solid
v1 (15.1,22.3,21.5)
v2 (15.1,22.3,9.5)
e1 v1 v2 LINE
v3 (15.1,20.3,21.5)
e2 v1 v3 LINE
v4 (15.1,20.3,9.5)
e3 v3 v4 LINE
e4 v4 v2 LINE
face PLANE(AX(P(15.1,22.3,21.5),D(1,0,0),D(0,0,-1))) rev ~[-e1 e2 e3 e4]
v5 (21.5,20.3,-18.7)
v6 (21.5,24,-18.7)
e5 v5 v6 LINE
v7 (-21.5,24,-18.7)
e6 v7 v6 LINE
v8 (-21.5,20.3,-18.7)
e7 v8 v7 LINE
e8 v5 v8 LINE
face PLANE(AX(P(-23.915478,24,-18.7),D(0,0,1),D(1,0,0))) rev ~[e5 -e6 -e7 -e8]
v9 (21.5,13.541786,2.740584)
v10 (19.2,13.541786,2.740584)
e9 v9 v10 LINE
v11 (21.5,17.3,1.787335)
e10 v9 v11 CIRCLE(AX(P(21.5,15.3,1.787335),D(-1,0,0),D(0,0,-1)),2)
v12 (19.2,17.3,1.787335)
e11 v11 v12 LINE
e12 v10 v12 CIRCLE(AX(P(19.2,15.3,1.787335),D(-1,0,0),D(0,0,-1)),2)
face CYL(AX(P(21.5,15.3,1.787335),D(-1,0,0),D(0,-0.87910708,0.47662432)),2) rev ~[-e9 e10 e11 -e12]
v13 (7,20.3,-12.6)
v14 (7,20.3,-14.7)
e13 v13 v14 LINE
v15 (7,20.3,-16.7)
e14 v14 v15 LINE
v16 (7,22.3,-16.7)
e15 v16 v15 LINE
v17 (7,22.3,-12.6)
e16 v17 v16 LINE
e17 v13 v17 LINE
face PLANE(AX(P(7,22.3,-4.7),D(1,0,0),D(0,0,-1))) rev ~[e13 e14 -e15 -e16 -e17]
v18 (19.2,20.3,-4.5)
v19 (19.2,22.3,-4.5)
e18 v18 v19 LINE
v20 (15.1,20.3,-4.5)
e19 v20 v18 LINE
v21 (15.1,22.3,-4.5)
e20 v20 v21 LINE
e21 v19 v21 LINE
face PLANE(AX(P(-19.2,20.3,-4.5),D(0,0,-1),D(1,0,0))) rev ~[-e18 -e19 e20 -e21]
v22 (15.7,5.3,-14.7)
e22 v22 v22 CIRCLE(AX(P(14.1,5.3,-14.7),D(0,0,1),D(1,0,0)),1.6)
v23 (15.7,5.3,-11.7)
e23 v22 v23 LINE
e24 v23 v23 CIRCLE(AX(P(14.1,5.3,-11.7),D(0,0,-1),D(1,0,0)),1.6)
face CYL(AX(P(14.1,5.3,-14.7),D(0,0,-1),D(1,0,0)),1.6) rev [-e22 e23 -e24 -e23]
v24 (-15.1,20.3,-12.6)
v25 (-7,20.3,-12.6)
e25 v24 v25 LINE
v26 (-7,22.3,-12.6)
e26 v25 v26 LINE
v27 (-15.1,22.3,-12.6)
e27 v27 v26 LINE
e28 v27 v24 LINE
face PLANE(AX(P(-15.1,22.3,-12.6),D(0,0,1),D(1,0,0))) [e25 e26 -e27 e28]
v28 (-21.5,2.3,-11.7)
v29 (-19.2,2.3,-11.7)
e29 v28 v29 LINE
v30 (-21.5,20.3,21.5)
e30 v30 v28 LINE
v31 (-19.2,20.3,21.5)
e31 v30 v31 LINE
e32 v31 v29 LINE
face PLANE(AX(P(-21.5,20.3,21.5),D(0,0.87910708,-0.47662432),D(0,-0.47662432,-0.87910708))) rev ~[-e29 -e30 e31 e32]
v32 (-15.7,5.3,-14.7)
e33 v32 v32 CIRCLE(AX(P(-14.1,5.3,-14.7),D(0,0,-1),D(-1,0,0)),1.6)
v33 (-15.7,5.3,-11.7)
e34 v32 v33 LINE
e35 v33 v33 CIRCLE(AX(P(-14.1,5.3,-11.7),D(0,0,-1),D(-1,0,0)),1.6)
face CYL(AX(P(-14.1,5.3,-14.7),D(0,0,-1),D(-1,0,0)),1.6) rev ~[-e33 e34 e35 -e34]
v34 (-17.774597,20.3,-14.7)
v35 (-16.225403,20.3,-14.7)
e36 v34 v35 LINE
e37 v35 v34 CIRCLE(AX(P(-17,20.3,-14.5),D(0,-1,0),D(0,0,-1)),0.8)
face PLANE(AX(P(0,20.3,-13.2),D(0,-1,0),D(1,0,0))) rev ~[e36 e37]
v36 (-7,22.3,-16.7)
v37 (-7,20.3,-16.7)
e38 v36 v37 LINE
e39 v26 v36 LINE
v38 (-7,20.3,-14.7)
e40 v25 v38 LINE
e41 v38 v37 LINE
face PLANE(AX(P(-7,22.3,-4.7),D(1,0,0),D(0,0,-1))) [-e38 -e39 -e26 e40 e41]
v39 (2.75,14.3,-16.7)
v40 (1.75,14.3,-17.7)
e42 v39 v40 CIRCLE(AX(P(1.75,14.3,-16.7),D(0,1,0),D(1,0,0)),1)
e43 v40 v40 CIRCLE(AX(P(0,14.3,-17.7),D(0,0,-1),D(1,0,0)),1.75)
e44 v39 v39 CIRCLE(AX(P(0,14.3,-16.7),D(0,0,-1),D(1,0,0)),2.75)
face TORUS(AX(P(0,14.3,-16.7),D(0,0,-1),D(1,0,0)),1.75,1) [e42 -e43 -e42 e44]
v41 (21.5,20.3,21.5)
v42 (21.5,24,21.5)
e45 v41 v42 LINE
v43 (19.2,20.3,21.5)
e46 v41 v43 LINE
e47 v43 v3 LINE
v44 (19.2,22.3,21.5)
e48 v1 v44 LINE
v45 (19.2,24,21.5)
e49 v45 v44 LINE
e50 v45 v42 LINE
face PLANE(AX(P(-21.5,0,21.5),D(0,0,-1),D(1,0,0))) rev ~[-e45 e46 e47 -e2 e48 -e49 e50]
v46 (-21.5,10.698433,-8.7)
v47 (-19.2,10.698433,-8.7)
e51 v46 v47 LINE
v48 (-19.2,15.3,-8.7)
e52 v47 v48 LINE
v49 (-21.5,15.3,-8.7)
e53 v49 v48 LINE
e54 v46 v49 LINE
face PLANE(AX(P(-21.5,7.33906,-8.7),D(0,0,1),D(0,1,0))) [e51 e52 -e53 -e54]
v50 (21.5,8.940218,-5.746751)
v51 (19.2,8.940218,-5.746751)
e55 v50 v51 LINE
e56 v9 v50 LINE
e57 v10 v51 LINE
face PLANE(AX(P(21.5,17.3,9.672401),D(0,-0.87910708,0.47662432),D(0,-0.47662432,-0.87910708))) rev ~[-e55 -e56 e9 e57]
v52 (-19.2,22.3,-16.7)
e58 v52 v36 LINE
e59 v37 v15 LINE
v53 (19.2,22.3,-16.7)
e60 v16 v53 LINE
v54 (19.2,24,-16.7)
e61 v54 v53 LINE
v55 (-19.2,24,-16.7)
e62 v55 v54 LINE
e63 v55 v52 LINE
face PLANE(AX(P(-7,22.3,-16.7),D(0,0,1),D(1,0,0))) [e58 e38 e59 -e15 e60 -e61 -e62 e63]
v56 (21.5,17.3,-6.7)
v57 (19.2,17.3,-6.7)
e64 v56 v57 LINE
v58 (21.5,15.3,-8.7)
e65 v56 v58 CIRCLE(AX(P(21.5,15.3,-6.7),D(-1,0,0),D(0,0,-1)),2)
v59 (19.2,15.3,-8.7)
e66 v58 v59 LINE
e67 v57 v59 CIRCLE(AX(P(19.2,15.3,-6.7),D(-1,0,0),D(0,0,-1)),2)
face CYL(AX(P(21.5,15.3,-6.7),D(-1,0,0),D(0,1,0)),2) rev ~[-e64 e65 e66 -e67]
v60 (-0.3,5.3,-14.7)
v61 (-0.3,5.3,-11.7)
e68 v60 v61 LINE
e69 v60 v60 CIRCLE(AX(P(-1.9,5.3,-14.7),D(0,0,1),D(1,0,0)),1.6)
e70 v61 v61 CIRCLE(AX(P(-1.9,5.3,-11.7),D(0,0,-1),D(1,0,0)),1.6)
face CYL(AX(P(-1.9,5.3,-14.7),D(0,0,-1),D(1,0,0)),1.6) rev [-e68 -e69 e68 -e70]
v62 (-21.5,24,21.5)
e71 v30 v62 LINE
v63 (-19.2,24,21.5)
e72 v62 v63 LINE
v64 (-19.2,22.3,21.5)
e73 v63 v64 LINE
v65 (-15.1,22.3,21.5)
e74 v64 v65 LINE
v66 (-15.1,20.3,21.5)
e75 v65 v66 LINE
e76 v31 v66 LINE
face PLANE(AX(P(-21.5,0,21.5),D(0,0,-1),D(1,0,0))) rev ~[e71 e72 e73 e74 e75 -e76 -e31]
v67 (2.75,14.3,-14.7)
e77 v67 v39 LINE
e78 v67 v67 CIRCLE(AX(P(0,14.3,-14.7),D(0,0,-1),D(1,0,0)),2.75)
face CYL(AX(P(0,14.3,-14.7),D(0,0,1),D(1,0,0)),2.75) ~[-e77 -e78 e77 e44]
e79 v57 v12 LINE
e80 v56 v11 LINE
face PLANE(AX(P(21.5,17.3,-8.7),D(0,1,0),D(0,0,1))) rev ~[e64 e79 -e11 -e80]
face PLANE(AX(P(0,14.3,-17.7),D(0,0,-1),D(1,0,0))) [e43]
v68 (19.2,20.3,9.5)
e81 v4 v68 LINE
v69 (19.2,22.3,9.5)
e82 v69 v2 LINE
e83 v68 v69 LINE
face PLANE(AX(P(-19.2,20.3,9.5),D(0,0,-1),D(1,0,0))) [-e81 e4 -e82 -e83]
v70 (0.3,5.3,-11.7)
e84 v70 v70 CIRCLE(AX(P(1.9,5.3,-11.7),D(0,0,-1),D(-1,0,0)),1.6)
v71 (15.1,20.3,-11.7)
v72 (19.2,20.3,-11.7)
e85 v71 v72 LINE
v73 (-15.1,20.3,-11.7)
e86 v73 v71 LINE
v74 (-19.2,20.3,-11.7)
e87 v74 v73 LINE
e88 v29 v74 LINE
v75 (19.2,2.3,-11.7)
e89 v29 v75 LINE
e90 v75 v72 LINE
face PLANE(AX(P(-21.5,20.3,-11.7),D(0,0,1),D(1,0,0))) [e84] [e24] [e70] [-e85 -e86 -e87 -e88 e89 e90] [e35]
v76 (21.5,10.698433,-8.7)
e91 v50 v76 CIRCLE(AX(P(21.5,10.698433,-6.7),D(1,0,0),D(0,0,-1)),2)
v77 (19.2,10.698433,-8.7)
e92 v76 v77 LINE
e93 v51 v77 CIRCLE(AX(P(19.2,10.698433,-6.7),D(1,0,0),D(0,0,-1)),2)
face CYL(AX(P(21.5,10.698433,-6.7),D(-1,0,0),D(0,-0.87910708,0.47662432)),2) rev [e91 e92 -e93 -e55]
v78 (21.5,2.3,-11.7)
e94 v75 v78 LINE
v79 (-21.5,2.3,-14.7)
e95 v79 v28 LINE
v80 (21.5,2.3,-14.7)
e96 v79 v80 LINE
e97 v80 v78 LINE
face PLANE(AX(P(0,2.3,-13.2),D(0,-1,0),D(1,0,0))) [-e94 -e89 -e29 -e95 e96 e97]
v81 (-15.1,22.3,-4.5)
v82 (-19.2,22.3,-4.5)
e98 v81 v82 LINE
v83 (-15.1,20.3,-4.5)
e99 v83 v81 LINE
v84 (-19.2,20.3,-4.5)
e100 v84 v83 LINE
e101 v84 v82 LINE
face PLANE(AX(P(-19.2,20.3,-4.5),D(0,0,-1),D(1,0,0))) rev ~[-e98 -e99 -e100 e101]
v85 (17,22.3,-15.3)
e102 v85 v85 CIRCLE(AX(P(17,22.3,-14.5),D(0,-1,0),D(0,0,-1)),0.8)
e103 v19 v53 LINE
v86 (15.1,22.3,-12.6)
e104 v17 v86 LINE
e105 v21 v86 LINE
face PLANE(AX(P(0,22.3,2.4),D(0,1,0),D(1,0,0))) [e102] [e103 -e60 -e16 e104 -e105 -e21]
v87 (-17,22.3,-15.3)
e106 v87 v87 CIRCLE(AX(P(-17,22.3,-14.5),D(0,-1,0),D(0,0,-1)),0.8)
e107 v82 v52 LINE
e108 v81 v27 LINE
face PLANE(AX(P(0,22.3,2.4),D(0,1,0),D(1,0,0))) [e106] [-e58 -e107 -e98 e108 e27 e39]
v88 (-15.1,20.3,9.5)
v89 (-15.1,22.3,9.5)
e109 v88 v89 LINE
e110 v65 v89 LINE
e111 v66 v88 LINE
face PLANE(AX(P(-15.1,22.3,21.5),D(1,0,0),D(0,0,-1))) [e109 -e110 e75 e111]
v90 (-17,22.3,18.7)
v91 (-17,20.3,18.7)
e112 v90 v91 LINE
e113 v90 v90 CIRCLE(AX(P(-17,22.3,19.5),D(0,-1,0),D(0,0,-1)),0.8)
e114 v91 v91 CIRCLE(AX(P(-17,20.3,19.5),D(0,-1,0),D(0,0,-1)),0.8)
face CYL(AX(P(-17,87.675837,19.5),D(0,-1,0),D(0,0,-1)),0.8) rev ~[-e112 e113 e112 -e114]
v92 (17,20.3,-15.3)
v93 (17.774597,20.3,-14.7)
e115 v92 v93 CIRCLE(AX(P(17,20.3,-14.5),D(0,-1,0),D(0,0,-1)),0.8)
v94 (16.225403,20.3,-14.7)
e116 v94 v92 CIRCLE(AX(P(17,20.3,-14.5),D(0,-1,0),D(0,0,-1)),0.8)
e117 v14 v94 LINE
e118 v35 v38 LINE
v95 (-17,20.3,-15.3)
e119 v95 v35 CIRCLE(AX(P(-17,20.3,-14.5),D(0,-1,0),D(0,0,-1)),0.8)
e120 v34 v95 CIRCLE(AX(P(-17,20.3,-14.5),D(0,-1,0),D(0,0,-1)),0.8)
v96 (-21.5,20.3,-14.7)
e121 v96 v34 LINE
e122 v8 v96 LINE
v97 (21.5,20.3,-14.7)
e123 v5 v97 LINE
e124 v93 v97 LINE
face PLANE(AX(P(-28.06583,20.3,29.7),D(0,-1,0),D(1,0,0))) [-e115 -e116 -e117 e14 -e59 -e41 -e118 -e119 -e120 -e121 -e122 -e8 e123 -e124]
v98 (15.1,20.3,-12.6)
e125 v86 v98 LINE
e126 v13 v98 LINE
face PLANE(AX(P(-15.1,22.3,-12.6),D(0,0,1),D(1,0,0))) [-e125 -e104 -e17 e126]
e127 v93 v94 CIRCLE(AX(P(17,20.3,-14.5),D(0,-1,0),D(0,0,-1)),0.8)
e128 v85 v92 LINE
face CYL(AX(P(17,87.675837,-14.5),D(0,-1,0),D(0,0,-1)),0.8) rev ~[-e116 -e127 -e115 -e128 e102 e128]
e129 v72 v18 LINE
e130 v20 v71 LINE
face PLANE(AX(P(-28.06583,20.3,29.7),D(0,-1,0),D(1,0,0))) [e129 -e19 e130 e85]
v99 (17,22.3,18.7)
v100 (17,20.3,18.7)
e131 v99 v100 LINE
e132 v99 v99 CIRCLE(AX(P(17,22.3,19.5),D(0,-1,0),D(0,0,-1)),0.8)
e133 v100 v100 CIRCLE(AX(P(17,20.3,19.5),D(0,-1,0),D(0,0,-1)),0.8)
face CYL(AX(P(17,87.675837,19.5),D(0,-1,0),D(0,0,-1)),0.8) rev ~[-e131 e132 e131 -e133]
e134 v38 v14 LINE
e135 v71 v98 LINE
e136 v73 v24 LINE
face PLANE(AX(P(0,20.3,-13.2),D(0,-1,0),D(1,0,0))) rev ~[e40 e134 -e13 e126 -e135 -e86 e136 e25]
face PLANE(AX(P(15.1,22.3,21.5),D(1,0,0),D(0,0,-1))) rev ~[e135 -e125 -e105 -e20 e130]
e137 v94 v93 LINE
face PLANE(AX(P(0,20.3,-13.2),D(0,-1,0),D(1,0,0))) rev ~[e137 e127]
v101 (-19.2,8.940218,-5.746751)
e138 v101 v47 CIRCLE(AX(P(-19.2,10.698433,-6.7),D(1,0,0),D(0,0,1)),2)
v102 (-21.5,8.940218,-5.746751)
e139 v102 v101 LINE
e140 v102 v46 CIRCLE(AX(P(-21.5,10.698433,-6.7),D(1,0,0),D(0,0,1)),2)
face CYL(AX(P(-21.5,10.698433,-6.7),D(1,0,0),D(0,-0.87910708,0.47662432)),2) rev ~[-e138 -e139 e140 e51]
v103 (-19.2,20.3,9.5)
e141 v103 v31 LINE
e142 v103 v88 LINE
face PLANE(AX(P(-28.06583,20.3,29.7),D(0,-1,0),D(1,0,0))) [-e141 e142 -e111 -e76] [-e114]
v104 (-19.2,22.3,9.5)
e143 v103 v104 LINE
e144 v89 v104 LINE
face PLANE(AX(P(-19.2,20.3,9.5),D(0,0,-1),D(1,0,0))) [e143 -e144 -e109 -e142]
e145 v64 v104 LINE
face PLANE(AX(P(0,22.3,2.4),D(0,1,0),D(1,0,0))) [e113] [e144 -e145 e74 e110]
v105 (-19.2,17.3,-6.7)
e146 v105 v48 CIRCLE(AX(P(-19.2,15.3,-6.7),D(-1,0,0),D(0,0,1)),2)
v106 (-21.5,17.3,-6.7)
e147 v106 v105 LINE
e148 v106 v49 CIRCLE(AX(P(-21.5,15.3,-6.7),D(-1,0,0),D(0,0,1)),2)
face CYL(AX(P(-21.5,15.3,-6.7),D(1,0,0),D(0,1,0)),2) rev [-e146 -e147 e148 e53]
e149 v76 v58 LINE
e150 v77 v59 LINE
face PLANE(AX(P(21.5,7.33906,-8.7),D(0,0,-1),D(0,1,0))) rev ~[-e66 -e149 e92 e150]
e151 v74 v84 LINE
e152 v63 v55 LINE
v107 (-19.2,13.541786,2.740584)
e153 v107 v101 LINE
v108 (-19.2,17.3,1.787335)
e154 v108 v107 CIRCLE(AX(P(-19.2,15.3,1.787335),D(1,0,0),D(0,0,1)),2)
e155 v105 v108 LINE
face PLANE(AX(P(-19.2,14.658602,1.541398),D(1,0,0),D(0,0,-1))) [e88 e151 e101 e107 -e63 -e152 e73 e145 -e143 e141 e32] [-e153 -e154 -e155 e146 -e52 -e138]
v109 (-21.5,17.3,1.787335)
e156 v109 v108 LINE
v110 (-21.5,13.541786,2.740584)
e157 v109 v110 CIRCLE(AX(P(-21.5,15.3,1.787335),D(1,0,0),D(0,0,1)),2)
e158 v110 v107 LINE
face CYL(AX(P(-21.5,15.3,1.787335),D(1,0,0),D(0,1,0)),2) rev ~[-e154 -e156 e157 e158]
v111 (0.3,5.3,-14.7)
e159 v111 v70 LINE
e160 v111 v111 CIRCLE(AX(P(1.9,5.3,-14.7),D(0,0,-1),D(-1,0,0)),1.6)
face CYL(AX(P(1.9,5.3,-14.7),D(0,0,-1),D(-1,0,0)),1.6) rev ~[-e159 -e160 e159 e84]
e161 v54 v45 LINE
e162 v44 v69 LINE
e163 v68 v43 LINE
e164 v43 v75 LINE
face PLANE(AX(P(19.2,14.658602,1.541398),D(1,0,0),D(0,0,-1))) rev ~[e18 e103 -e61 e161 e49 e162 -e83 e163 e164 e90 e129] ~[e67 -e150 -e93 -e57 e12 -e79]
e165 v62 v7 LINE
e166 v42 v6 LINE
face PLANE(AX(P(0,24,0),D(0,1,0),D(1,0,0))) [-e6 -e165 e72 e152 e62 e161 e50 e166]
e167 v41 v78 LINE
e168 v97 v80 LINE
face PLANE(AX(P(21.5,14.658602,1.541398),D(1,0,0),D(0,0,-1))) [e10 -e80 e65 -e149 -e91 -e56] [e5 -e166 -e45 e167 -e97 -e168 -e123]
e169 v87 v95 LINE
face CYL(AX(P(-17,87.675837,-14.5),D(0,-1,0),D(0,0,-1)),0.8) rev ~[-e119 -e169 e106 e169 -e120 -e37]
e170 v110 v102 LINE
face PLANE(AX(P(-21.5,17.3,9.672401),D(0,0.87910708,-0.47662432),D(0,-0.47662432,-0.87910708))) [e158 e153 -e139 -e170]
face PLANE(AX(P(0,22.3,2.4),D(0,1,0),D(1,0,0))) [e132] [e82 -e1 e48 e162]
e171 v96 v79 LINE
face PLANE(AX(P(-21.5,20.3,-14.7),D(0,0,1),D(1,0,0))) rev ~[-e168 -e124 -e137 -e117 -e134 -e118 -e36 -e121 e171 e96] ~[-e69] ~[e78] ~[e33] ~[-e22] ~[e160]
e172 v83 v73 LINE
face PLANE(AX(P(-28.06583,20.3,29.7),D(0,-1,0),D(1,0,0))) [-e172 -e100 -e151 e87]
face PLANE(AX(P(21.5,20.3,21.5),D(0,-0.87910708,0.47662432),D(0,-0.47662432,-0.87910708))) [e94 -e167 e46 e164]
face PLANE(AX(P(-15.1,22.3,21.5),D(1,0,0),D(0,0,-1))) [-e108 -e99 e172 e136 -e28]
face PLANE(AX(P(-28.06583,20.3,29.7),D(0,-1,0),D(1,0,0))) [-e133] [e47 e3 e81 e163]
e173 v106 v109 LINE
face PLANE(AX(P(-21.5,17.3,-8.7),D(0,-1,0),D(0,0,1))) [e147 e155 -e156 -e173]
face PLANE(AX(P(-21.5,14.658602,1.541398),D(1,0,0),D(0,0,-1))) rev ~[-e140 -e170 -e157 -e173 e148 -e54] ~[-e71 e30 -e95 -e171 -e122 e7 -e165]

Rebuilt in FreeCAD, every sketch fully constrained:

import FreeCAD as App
import Part
import Sketcher
Q = App.Units.Quantity


def edges_at(feature, points):
    """Names of the edges that pass closest to the given points."""
    edges = feature.Shape.Edges
    near = lambda p: min(range(len(edges)), key=lambda i: edges[i].distToShape(Part.Vertex(*p))[0])
    return sorted({f"Edge{near(p) + 1}" for p in points})

doc = App.newDocument("Part")
params = doc.addObject("Spreadsheet::Sheet", "Params")
for row, (alias, value) in enumerate([
    ("sketch1_width", "43 mm"),
    ("pad1_length", "24 mm"),
    ("sketch2_width", "38.4 mm"),
    ("sketch2_height", "38.2 mm"),
    ("pocket1_length", "1.7 mm"),
    ("sketch3_diameter", "1.6 mm"),
    ("hole_diameter", "1.6 mm"),
    ("sketch4_width", "30.2 mm"),
    ("sketch4_height", "34.1 mm"),
    ("pocket2_length", "2 mm"),
    ("sketch5_width", "14 mm"),
    ("sketch5_height", "12 mm"),
    ("sketch6_width", "28.9 mm"),
    ("sketch7_height", "20.3 mm"),
    ("sketch7_width", "7.05 mm"),
    ("pad2_length", "8.2 mm"),
    ("sketch8_width", "11.8 mm"),
    ("pocket5_length", "4.1 mm"),
    ("sketch9_diameter", "2.9 mm"),
    ("hole2_diameter", "2.9 mm"),
    ("sketch10_width", "45 mm"),
    ("pocket6_length", "11.8 mm"),
    ("pocket8_length", "10 mm"),
    ("sketch13_height", "14 mm"),
    ("sketch13_width", "38.4 mm"),
    ("sketch14_width", "43 mm"),
    ("sketch14_height", "3 mm"),
    ("pad3_length", "18 mm"),
    ("sketch15_diameter", "3.2 mm"),
    ("sketch16_diameter", "5.5 mm"),
    ("pad4_length", "3 mm"),
    ("fillet_radius", "1 mm"),
    ("sketch17_width", "18 mm"),
    ("sketch17_height", "33.2 mm"),
    ("pad5_length", "2.3 mm"),
    ("sketch18_width", "18 mm"),
    ("sketch18_height", "33.2 mm"),
    ("pad6_length", "2.3 mm"),
    ("fillet2_radius", "2 mm"),
], start=1):
    params.set(f"A{row}", alias)
    params.set(f"B{row}", "=" + value)
    params.setAlias(f"B{row}", alias)

body = doc.addObject("PartDesign::Body", "Body")

# Sketch on XZ plane
sketch1 = body.newObject("Sketcher::SketchObject", "Sketch")
sketch1.AttachmentSupport = (doc.getObject("XZ_Plane"), [""])
sketch1.MapMode = "FlatFace"
sketch1.addGeometry(Part.LineSegment(App.Vector(-21.5, -21.5, 0), App.Vector(-21.5, 21.5, 0)), False)
sketch1.addGeometry(Part.LineSegment(App.Vector(-21.5, 21.5, 0), App.Vector(21.5, 21.5, 0)), False)
sketch1.addGeometry(Part.LineSegment(App.Vector(21.5, 21.5, 0), App.Vector(21.5, -21.5, 0)), False)
sketch1.addGeometry(Part.LineSegment(App.Vector(21.5, -21.5, 0), App.Vector(-21.5, -21.5, 0)), False)
sketch1.addConstraint(Sketcher.Constraint("Coincident", 0, 2, 1, 1))
sketch1.addConstraint(Sketcher.Constraint("Coincident", 1, 2, 2, 1))
sketch1.addConstraint(Sketcher.Constraint("Coincident", 2, 2, 3, 1))
sketch1.addConstraint(Sketcher.Constraint("Coincident", 3, 2, 0, 1))
sketch1.addConstraint(Sketcher.Constraint("Vertical", 0))
sketch1.addConstraint(Sketcher.Constraint("Horizontal", 1))
sketch1.addConstraint(Sketcher.Constraint("Vertical", 2))
sketch1.addConstraint(Sketcher.Constraint("Horizontal", 3))
sketch1.addConstraint(Sketcher.Constraint("Symmetric", 0, 2, 2, 2, -1, 1))
sketch1.addConstraint(Sketcher.Constraint("Equal", 3, 0))
sketch1.addConstraint(Sketcher.Constraint("DistanceX", 1, 1, 1, 2, Q("43 mm")))
sketch1.setExpression("Constraints[10]", "Params.sketch1_width")
pad1 = body.newObject("PartDesign::Pad", "Pad")
pad1.Profile = sketch1
pad1.setExpression("Length", "Params.pad1_length")
pad1.Reversed = True

# Sketch on XZ plane
sketch2 = body.newObject("Sketcher::SketchObject", "Sketch001")
sketch2.AttachmentSupport = (doc.getObject("XZ_Plane"), [""])
sketch2.MapMode = "FlatFace"
sketch2.AttachmentOffset = App.Placement(App.Vector(0, 0, -24), App.Rotation())
sketch2.addGeometry(Part.LineSegment(App.Vector(-19.2, -16.7, 0), App.Vector(-19.2, 21.5, 0)), False)
sketch2.addGeometry(Part.LineSegment(App.Vector(-19.2, 21.5, 0), App.Vector(19.2, 21.5, 0)), False)
sketch2.addGeometry(Part.LineSegment(App.Vector(19.2, 21.5, 0), App.Vector(19.2, -16.7, 0)), False)
sketch2.addGeometry(Part.LineSegment(App.Vector(19.2, -16.7, 0), App.Vector(-19.2, -16.7, 0)), False)
sketch2.addConstraint(Sketcher.Constraint("Coincident", 0, 2, 1, 1))
sketch2.addConstraint(Sketcher.Constraint("Coincident", 1, 2, 2, 1))
sketch2.addConstraint(Sketcher.Constraint("Coincident", 2, 2, 3, 1))
sketch2.addConstraint(Sketcher.Constraint("Coincident", 3, 2, 0, 1))
sketch2.addConstraint(Sketcher.Constraint("Vertical", 0))
sketch2.addConstraint(Sketcher.Constraint("Horizontal", 1))
sketch2.addConstraint(Sketcher.Constraint("Vertical", 2))
sketch2.addConstraint(Sketcher.Constraint("Horizontal", 3))
sketch2.addConstraint(Sketcher.Constraint("DistanceX", 1, 1, 1, 2, Q("38.4 mm")))
sketch2.addConstraint(Sketcher.Constraint("DistanceY", 0, 1, 0, 2, Q("38.2 mm")))
sketch2.addConstraint(Sketcher.Constraint("DistanceX", 0, 2, -1, 1, Q("19.2 mm")))
sketch2.addConstraint(Sketcher.Constraint("DistanceY", -1, 1, 0, 2, Q("21.5 mm")))
sketch2.setExpression("Constraints[8]", "Params.sketch2_width")
sketch2.setExpression("Constraints[9]", "Params.sketch2_height")
pocket1 = body.newObject("PartDesign::Pocket", "Pocket")
pocket1.Profile = sketch2
pocket1.setExpression("Length", "Params.pocket1_length")
pocket1.Reversed = True

# Sketch on XZ plane
sketch3 = body.newObject("Sketcher::SketchObject", "Sketch002")
sketch3.AttachmentSupport = (doc.getObject("XZ_Plane"), [""])
sketch3.MapMode = "FlatFace"
sketch3.AttachmentOffset = App.Placement(App.Vector(0, 0, -22.3), App.Rotation())
sketch3.addGeometry(Part.Circle(App.Vector(-17, -14.5, 0), App.Vector(0, 0, 1), 0.8), False)
sketch3.addGeometry(Part.Circle(App.Vector(17, -14.5, 0), App.Vector(0, 0, 1), 0.8), False)
sketch3.addGeometry(Part.Circle(App.Vector(17, 19.5, 0), App.Vector(0, 0, 1), 0.8), False)
sketch3.addGeometry(Part.Circle(App.Vector(-17, 19.5, 0), App.Vector(0, 0, 1), 0.8), False)
sketch3.addConstraint(Sketcher.Constraint("Equal", 0, 1))
sketch3.addConstraint(Sketcher.Constraint("Equal", 1, 2))
sketch3.addConstraint(Sketcher.Constraint("Equal", 2, 3))
sketch3.addConstraint(Sketcher.Constraint("Symmetric", 0, 3, 1, 3, -2))
sketch3.addConstraint(Sketcher.Constraint("Symmetric", 2, 3, 3, 3, -2))
sketch3.addConstraint(Sketcher.Constraint("Vertical", 1, 3, 2, 3))
sketch3.addConstraint(Sketcher.Constraint("Diameter", 0, Q("1.6 mm")))
sketch3.addConstraint(Sketcher.Constraint("DistanceX", 0, 3, -1, 1, Q("17 mm")))
sketch3.addConstraint(Sketcher.Constraint("DistanceY", 1, 3, 2, 3, Q("34 mm")))
sketch3.addConstraint(Sketcher.Constraint("DistanceY", 0, 3, -1, 1, Q("14.5 mm")))
sketch3.setExpression("Constraints[6]", "Params.sketch3_diameter")
doc.recompute()
hole = body.newObject("PartDesign::Hole", "Hole")
hole.Profile = sketch3
hole.ThreadType = "None"
hole.setExpression("Diameter", "Params.hole_diameter")
hole.DepthType = "ThroughAll"
hole.Reversed = True

# Sketch on XZ plane
sketch4 = body.newObject("Sketcher::SketchObject", "Sketch003")
sketch4.AttachmentSupport = (doc.getObject("XZ_Plane"), [""])
sketch4.MapMode = "FlatFace"
sketch4.AttachmentOffset = App.Placement(App.Vector(0, 0, -22.3), App.Rotation())
sketch4.addGeometry(Part.LineSegment(App.Vector(-15.1, -12.6, 0), App.Vector(-15.1, 21.5, 0)), False)
sketch4.addGeometry(Part.LineSegment(App.Vector(-15.1, 21.5, 0), App.Vector(15.1, 21.5, 0)), False)
sketch4.addGeometry(Part.LineSegment(App.Vector(15.1, 21.5, 0), App.Vector(15.1, -12.6, 0)), False)
sketch4.addGeometry(Part.LineSegment(App.Vector(15.1, -12.6, 0), App.Vector(-15.1, -12.6, 0)), False)
sketch4.addConstraint(Sketcher.Constraint("Coincident", 0, 2, 1, 1))
sketch4.addConstraint(Sketcher.Constraint("Coincident", 1, 2, 2, 1))
sketch4.addConstraint(Sketcher.Constraint("Coincident", 2, 2, 3, 1))
sketch4.addConstraint(Sketcher.Constraint("Coincident", 3, 2, 0, 1))
sketch4.addConstraint(Sketcher.Constraint("Vertical", 0))
sketch4.addConstraint(Sketcher.Constraint("Horizontal", 1))
sketch4.addConstraint(Sketcher.Constraint("Vertical", 2))
sketch4.addConstraint(Sketcher.Constraint("Horizontal", 3))
sketch4.addConstraint(Sketcher.Constraint("DistanceX", 1, 1, 1, 2, Q("30.2 mm")))
sketch4.addConstraint(Sketcher.Constraint("DistanceY", 0, 1, 0, 2, Q("34.1 mm")))
sketch4.addConstraint(Sketcher.Constraint("DistanceX", 0, 2, -1, 1, Q("15.1 mm")))
sketch4.addConstraint(Sketcher.Constraint("DistanceY", -1, 1, 0, 2, Q("21.5 mm")))
sketch4.setExpression("Constraints[8]", "Params.sketch4_width")
sketch4.setExpression("Constraints[9]", "Params.sketch4_height")
pocket2 = body.newObject("PartDesign::Pocket", "Pocket001")
pocket2.Profile = sketch4
pocket2.setExpression("Length", "Params.pocket2_length")
pocket2.Reversed = True

# Sketch on XZ plane
sketch5 = body.newObject("Sketcher::SketchObject", "Sketch004")
sketch5.AttachmentSupport = (doc.getObject("XZ_Plane"), [""])
sketch5.MapMode = "FlatFace"
sketch5.AttachmentOffset = App.Placement(App.Vector(0, 0, -22.3), App.Rotation())
sketch5.addGeometry(Part.LineSegment(App.Vector(-7, -16.7, 0), App.Vector(-7, -4.7, 0)), False)
sketch5.addGeometry(Part.LineSegment(App.Vector(-7, -4.7, 0), App.Vector(7, -4.7, 0)), False)
sketch5.addGeometry(Part.LineSegment(App.Vector(7, -4.7, 0), App.Vector(7, -16.7, 0)), False)
sketch5.addGeometry(Part.LineSegment(App.Vector(7, -16.7, 0), App.Vector(-7, -16.7, 0)), False)
sketch5.addConstraint(Sketcher.Constraint("Coincident", 0, 2, 1, 1))
sketch5.addConstraint(Sketcher.Constraint("Coincident", 1, 2, 2, 1))
sketch5.addConstraint(Sketcher.Constraint("Coincident", 2, 2, 3, 1))
sketch5.addConstraint(Sketcher.Constraint("Coincident", 3, 2, 0, 1))
sketch5.addConstraint(Sketcher.Constraint("Vertical", 0))
sketch5.addConstraint(Sketcher.Constraint("Horizontal", 1))
sketch5.addConstraint(Sketcher.Constraint("Vertical", 2))
sketch5.addConstraint(Sketcher.Constraint("Horizontal", 3))
sketch5.addConstraint(Sketcher.Constraint("DistanceX", 1, 1, 1, 2, Q("14 mm")))
sketch5.addConstraint(Sketcher.Constraint("DistanceY", 0, 1, 0, 2, Q("12 mm")))
sketch5.addConstraint(Sketcher.Constraint("DistanceX", 0, 2, -1, 1, Q("7 mm")))
sketch5.addConstraint(Sketcher.Constraint("DistanceY", 0, 2, -1, 1, Q("4.7 mm")))
sketch5.setExpression("Constraints[8]", "Params.sketch5_width")
sketch5.setExpression("Constraints[9]", "Params.sketch5_height")
pocket3 = body.newObject("PartDesign::Pocket", "Pocket002")
pocket3.Profile = sketch5
pocket3.Type = "ThroughAll"
pocket3.Reversed = True

# Sketch on XZ plane
sketch6 = body.newObject("Sketcher::SketchObject", "Sketch005")
sketch6.AttachmentSupport = (doc.getObject("XZ_Plane"), [""])
sketch6.MapMode = "FlatFace"
sketch6.AttachmentOffset = App.Placement(App.Vector(0, 0, -20.3), App.Rotation())
sketch6.addGeometry(Part.LineSegment(App.Vector(-14.45, -6.491319, 0), App.Vector(-14.45, 49.491319, 0)), False)
sketch6.addGeometry(Part.LineSegment(App.Vector(-14.45, 49.491319, 0), App.Vector(14.45, 49.491319, 0)), False)
sketch6.addGeometry(Part.LineSegment(App.Vector(14.45, 49.491319, 0), App.Vector(14.45, -6.491319, 0)), False)
sketch6.addGeometry(Part.LineSegment(App.Vector(14.45, -6.491319, 0), App.Vector(-14.45, -6.491319, 0)), False)
sketch6.addConstraint(Sketcher.Constraint("Coincident", 0, 2, 1, 1))
sketch6.addConstraint(Sketcher.Constraint("Coincident", 1, 2, 2, 1))
sketch6.addConstraint(Sketcher.Constraint("Coincident", 2, 2, 3, 1))
sketch6.addConstraint(Sketcher.Constraint("Coincident", 3, 2, 0, 1))
sketch6.addConstraint(Sketcher.Constraint("Vertical", 0))
sketch6.addConstraint(Sketcher.Constraint("Horizontal", 1))
sketch6.addConstraint(Sketcher.Constraint("Vertical", 2))
sketch6.addConstraint(Sketcher.Constraint("Horizontal", 3))
sketch6.addConstraint(Sketcher.Constraint("DistanceX", 1, 1, 1, 2, Q("28.9 mm")))
sketch6.addConstraint(Sketcher.Constraint("DistanceX", 0, 2, -1, 1, Q("14.45 mm")))
sketch6.addConstraint(Sketcher.Constraint("DistanceY", 0, 1, 0, 2, Q("55.982637 mm")))
sketch6.addConstraint(Sketcher.Constraint("DistanceY", -1, 1, 0, 2, Q("49.491319 mm")))
sketch6.setExpression("Constraints[8]", "Params.sketch6_width")
pocket4 = body.newObject("PartDesign::Pocket", "Pocket003")
pocket4.Profile = sketch6
pocket4.Type = "ThroughAll"
pocket4.Reversed = True

# Sketch on XY plane
sketch7 = body.newObject("Sketcher::SketchObject", "Sketch006")
sketch7.AttachmentSupport = (doc.getObject("XY_Plane"), [""])
sketch7.MapMode = "FlatFace"
sketch7.AttachmentOffset = App.Placement(App.Vector(0, 0, 21.5), App.Rotation())
sketch7.addGeometry(Part.LineSegment(App.Vector(-21.5, 20.3, 0), App.Vector(-21.5, 0, 0)), False)
sketch7.addGeometry(Part.LineSegment(App.Vector(-21.5, 0, 0), App.Vector(-14.45, 0, 0)), False)
sketch7.addGeometry(Part.LineSegment(App.Vector(-14.45, 0, 0), App.Vector(-14.45, 20.3, 0)), False)
sketch7.addGeometry(Part.LineSegment(App.Vector(-14.45, 20.3, 0), App.Vector(-21.5, 20.3, 0)), False)
sketch7.addConstraint(Sketcher.Constraint("Coincident", 0, 2, 1, 1))
sketch7.addConstraint(Sketcher.Constraint("Coincident", 1, 2, 2, 1))
sketch7.addConstraint(Sketcher.Constraint("Coincident", 2, 2, 3, 1))
sketch7.addConstraint(Sketcher.Constraint("Coincident", 3, 2, 0, 1))
sketch7.addConstraint(Sketcher.Constraint("Vertical", 0))
sketch7.addConstraint(Sketcher.Constraint("Horizontal", 1))
sketch7.addConstraint(Sketcher.Constraint("Vertical", 2))
sketch7.addConstraint(Sketcher.Constraint("Horizontal", 3))
sketch7.addConstraint(Sketcher.Constraint("PointOnObject", 0, 2, -1))
sketch7.addConstraint(Sketcher.Constraint("DistanceY", 0, 2, 0, 1, Q("20.3 mm")))
sketch7.addConstraint(Sketcher.Constraint("DistanceX", 1, 1, 1, 2, Q("7.05 mm")))
sketch7.addConstraint(Sketcher.Constraint("DistanceX", 0, 2, -1, 1, Q("21.5 mm")))
sketch7.setExpression("Constraints[9]", "Params.sketch7_height")
sketch7.setExpression("Constraints[10]", "Params.sketch7_width")
pad2 = body.newObject("PartDesign::Pad", "Pad001")
pad2.Profile = sketch7
pad2.setExpression("Length", "Params.pad2_length")
doc.recompute()

mirrored = body.newObject("PartDesign::Mirrored", "Mirrored")
mirrored.Originals = [pad2]
mirrored.MirrorPlane = (doc.getObject("YZ_Plane"), [""])
body.Tip = mirrored

# Sketch on YZ plane
sketch8 = body.newObject("Sketcher::SketchObject", "Sketch007")
sketch8.AttachmentSupport = (doc.getObject("YZ_Plane"), [""])
sketch8.MapMode = "FlatFace"
sketch8.AttachmentOffset = App.Placement(App.Vector(0, 0, -14.45), App.Rotation())
sketch8.addGeometry(Part.LineSegment(App.Vector(11.8, 29.7, 0), App.Vector(0, 29.7, 0)), False)
sketch8.addGeometry(Part.LineSegment(App.Vector(0, 29.7, 0), App.Vector(0, -6.491319, 0)), False)
sketch8.addGeometry(Part.LineSegment(App.Vector(0, -6.491319, 0), App.Vector(11.8, -6.491319, 0)), False)
sketch8.addGeometry(Part.LineSegment(App.Vector(11.8, -6.491319, 0), App.Vector(11.8, 29.7, 0)), False)
sketch8.addConstraint(Sketcher.Constraint("Coincident", 0, 2, 1, 1))
sketch8.addConstraint(Sketcher.Constraint("Coincident", 1, 2, 2, 1))
sketch8.addConstraint(Sketcher.Constraint("Coincident", 2, 2, 3, 1))
sketch8.addConstraint(Sketcher.Constraint("Coincident", 3, 2, 0, 1))
sketch8.addConstraint(Sketcher.Constraint("Horizontal", 0))
sketch8.addConstraint(Sketcher.Constraint("Vertical", 1))
sketch8.addConstraint(Sketcher.Constraint("Horizontal", 2))
sketch8.addConstraint(Sketcher.Constraint("Vertical", 3))
sketch8.addConstraint(Sketcher.Constraint("PointOnObject", 0, 2, -2))
sketch8.addConstraint(Sketcher.Constraint("DistanceX", 0, 2, 0, 1, Q("11.8 mm")))
sketch8.addConstraint(Sketcher.Constraint("DistanceY", -1, 1, 0, 2, Q("29.7 mm")))
sketch8.addConstraint(Sketcher.Constraint("DistanceY", 1, 2, 1, 1, Q("36.191319 mm")))
sketch8.setExpression("Constraints[9]", "Params.sketch8_width")
pocket5 = body.newObject("PartDesign::Pocket", "Pocket004")
pocket5.Profile = sketch8
pocket5.setExpression("Length", "Params.pocket5_length")
doc.recompute()

mirrored2 = body.newObject("PartDesign::Mirrored", "Mirrored001")
mirrored2.Originals = [pocket5]
mirrored2.MirrorPlane = (doc.getObject("YZ_Plane"), [""])
body.Tip = mirrored2

# Sketch on YZ plane
sketch9 = body.newObject("Sketcher::SketchObject", "Sketch008")
sketch9.AttachmentSupport = (doc.getObject("YZ_Plane"), [""])
sketch9.MapMode = "FlatFace"
sketch9.AttachmentOffset = App.Placement(App.Vector(0, 0, -21.5), App.Rotation())
sketch9.addGeometry(Part.Circle(App.Vector(5.05, 6.7, 0), App.Vector(0, 0, 1), 1.45), False)
sketch9.addGeometry(Part.Circle(App.Vector(5.05, 18.7, 0), App.Vector(0, 0, 1), 1.45), False)
sketch9.addConstraint(Sketcher.Constraint("Equal", 0, 1))
sketch9.addConstraint(Sketcher.Constraint("Vertical", 0, 3, 1, 3))
sketch9.addConstraint(Sketcher.Constraint("Diameter", 0, Q("2.9 mm")))
sketch9.addConstraint(Sketcher.Constraint("DistanceY", 0, 3, 1, 3, Q("12 mm")))
sketch9.addConstraint(Sketcher.Constraint("DistanceY", -1, 1, 0, 3, Q("6.7 mm")))
sketch9.addConstraint(Sketcher.Constraint("DistanceX", -1, 1, 0, 3, Q("5.05 mm")))
sketch9.setExpression("Constraints[2]", "Params.sketch9_diameter")
doc.recompute()
hole2 = body.newObject("PartDesign::Hole", "Hole001")
hole2.Profile = sketch9
hole2.ThreadType = "None"
hole2.setExpression("Diameter", "Params.hole2_diameter")
hole2.DepthType = "ThroughAll"
hole2.Reversed = True

# Sketch on XZ plane
sketch10 = body.newObject("Sketcher::SketchObject", "Sketch009")
sketch10.AttachmentSupport = (doc.getObject("XZ_Plane"), [""])
sketch10.MapMode = "FlatFace"
sketch10.addGeometry(Part.LineSegment(App.Vector(-22.5, -6.491319, 0), App.Vector(-22.5, -36.508681, 0)), False)
sketch10.addGeometry(Part.LineSegment(App.Vector(-22.5, -36.508681, 0), App.Vector(22.5, -36.508681, 0)), False)
sketch10.addGeometry(Part.LineSegment(App.Vector(22.5, -36.508681, 0), App.Vector(22.5, -6.491319, 0)), False)
sketch10.addGeometry(Part.LineSegment(App.Vector(22.5, -6.491319, 0), App.Vector(-22.5, -6.491319, 0)), False)
sketch10.addConstraint(Sketcher.Constraint("Coincident", 0, 2, 1, 1))
sketch10.addConstraint(Sketcher.Constraint("Coincident", 1, 2, 2, 1))
sketch10.addConstraint(Sketcher.Constraint("Coincident", 2, 2, 3, 1))
sketch10.addConstraint(Sketcher.Constraint("Coincident", 3, 2, 0, 1))
sketch10.addConstraint(Sketcher.Constraint("Vertical", 0))
sketch10.addConstraint(Sketcher.Constraint("Horizontal", 1))
sketch10.addConstraint(Sketcher.Constraint("Vertical", 2))
sketch10.addConstraint(Sketcher.Constraint("Horizontal", 3))
sketch10.addConstraint(Sketcher.Constraint("DistanceX", 1, 1, 1, 2, Q("45 mm")))
sketch10.addConstraint(Sketcher.Constraint("DistanceX", 0, 2, -1, 1, Q("22.5 mm")))
sketch10.addConstraint(Sketcher.Constraint("DistanceY", 0, 2, 0, 1, Q("30.017363 mm")))
sketch10.addConstraint(Sketcher.Constraint("DistanceY", 0, 2, -1, 1, Q("36.508681 mm")))
sketch10.setExpression("Constraints[8]", "Params.sketch10_width")
pocket6 = body.newObject("PartDesign::Pocket", "Pocket005")
pocket6.Profile = sketch10
pocket6.setExpression("Length", "Params.pocket6_length")

# Sketch on XY plane
sketch11 = body.newObject("Sketcher::SketchObject", "Sketch010")
sketch11.AttachmentSupport = (doc.getObject("XY_Plane"), [""])
sketch11.MapMode = "FlatFace"
sketch11.AttachmentOffset = App.Placement(App.Vector(0, 0, 29.7), App.Rotation())
sketch11.addGeometry(Part.LineSegment(App.Vector(-28.06583, 20.3, 0), App.Vector(-28.06583, -5.442878, 0)), False)
sketch11.addGeometry(Part.LineSegment(App.Vector(-28.06583, -5.442878, 0), App.Vector(26.314096, -5.442878, 0)), False)
sketch11.addGeometry(Part.LineSegment(App.Vector(26.314096, -5.442878, 0), App.Vector(26.314096, 20.3, 0)), False)
sketch11.addGeometry(Part.LineSegment(App.Vector(26.314096, 20.3, 0), App.Vector(-28.06583, 20.3, 0)), False)
sketch11.addConstraint(Sketcher.Constraint("Coincident", 0, 2, 1, 1))
sketch11.addConstraint(Sketcher.Constraint("Coincident", 1, 2, 2, 1))
sketch11.addConstraint(Sketcher.Constraint("Coincident", 2, 2, 3, 1))
sketch11.addConstraint(Sketcher.Constraint("Coincident", 3, 2, 0, 1))
sketch11.addConstraint(Sketcher.Constraint("Vertical", 0))
sketch11.addConstraint(Sketcher.Constraint("Horizontal", 1))
sketch11.addConstraint(Sketcher.Constraint("Vertical", 2))
sketch11.addConstraint(Sketcher.Constraint("Horizontal", 3))
sketch11.addConstraint(Sketcher.Constraint("DistanceY", -1, 1, 2, 2, Q("20.3 mm")))
sketch11.addConstraint(Sketcher.Constraint("DistanceY", 0, 2, 0, 1, Q("25.742878 mm")))
sketch11.addConstraint(Sketcher.Constraint("DistanceX", 1, 1, 1, 2, Q("54.379926 mm")))
sketch11.addConstraint(Sketcher.Constraint("DistanceX", 0, 2, -1, 1, Q("28.06583 mm")))
pocket7 = body.newObject("PartDesign::Pocket", "Pocket006")
pocket7.Profile = sketch11
pocket7.Type = "ThroughAll"

# Sketch on XZ plane
sketch12 = body.newObject("Sketcher::SketchObject", "Sketch011")
sketch12.AttachmentSupport = (doc.getObject("XZ_Plane"), [""])
sketch12.MapMode = "FlatFace"
sketch12.AttachmentOffset = App.Placement(App.Vector(0, 0, -24), App.Rotation())
sketch12.addGeometry(Part.LineSegment(App.Vector(-23.915478, -26.948398, 0), App.Vector(-23.915478, -18.7, 0)), False)
sketch12.addGeometry(Part.LineSegment(App.Vector(-23.915478, -18.7, 0), App.Vector(27.254029, -18.7, 0)), False)
sketch12.addGeometry(Part.LineSegment(App.Vector(27.254029, -18.7, 0), App.Vector(27.254029, -26.948398, 0)), False)
sketch12.addGeometry(Part.LineSegment(App.Vector(27.254029, -26.948398, 0), App.Vector(-23.915478, -26.948398, 0)), False)
sketch12.addConstraint(Sketcher.Constraint("Coincident", 0, 2, 1, 1))
sketch12.addConstraint(Sketcher.Constraint("Coincident", 1, 2, 2, 1))
sketch12.addConstraint(Sketcher.Constraint("Coincident", 2, 2, 3, 1))
sketch12.addConstraint(Sketcher.Constraint("Coincident", 3, 2, 0, 1))
sketch12.addConstraint(Sketcher.Constraint("Vertical", 0))
sketch12.addConstraint(Sketcher.Constraint("Horizontal", 1))
sketch12.addConstraint(Sketcher.Constraint("Vertical", 2))
sketch12.addConstraint(Sketcher.Constraint("Horizontal", 3))
sketch12.addConstraint(Sketcher.Constraint("DistanceY", 0, 2, -1, 1, Q("18.7 mm")))
sketch12.addConstraint(Sketcher.Constraint("DistanceY", 0, 1, 0, 2, Q("8.248398 mm")))
sketch12.addConstraint(Sketcher.Constraint("DistanceX", 1, 1, 1, 2, Q("51.169507 mm")))
sketch12.addConstraint(Sketcher.Constraint("DistanceX", 0, 2, -1, 1, Q("23.915478 mm")))
pocket8 = body.newObject("PartDesign::Pocket", "Pocket007")
pocket8.Profile = sketch12
pocket8.setExpression("Length", "Params.pocket8_length")
pocket8.Reversed = True

# Sketch on XZ plane
sketch13 = body.newObject("Sketcher::SketchObject", "Sketch012")
sketch13.AttachmentSupport = (doc.getObject("XZ_Plane"), [""])
sketch13.MapMode = "FlatFace"
sketch13.AttachmentOffset = App.Placement(App.Vector(0, 0, -20.3), App.Rotation())
sketch13.addGeometry(Part.LineSegment(App.Vector(-19.2, 9.5, 0), App.Vector(-19.2, -4.5, 0)), False)
sketch13.addGeometry(Part.LineSegment(App.Vector(-19.2, -4.5, 0), App.Vector(19.2, -4.5, 0)), False)
sketch13.addGeometry(Part.LineSegment(App.Vector(19.2, -4.5, 0), App.Vector(19.2, 9.5, 0)), False)
sketch13.addGeometry(Part.LineSegment(App.Vector(19.2, 9.5, 0), App.Vector(-19.2, 9.5, 0)), False)
sketch13.addConstraint(Sketcher.Constraint("Coincident", 0, 2, 1, 1))
sketch13.addConstraint(Sketcher.Constraint("Coincident", 1, 2, 2, 1))
sketch13.addConstraint(Sketcher.Constraint("Coincident", 2, 2, 3, 1))
sketch13.addConstraint(Sketcher.Constraint("Coincident", 3, 2, 0, 1))
sketch13.addConstraint(Sketcher.Constraint("Vertical", 0))
sketch13.addConstraint(Sketcher.Constraint("Horizontal", 1))
sketch13.addConstraint(Sketcher.Constraint("Vertical", 2))
sketch13.addConstraint(Sketcher.Constraint("Horizontal", 3))
sketch13.addConstraint(Sketcher.Constraint("DistanceY", 0, 2, 0, 1, Q("14 mm")))
sketch13.addConstraint(Sketcher.Constraint("DistanceX", 1, 1, 1, 2, Q("38.4 mm")))
sketch13.addConstraint(Sketcher.Constraint("DistanceX", 0, 2, -1, 1, Q("19.2 mm")))
sketch13.addConstraint(Sketcher.Constraint("DistanceY", 0, 2, -1, 1, Q("4.5 mm")))
sketch13.setExpression("Constraints[8]", "Params.sketch13_height")
sketch13.setExpression("Constraints[9]", "Params.sketch13_width")
pocket9 = body.newObject("PartDesign::Pocket", "Pocket008")
pocket9.Profile = sketch13
pocket9.Type = "ThroughAll"

# Sketch on XZ plane
sketch14 = body.newObject("Sketcher::SketchObject", "Sketch013")
sketch14.AttachmentSupport = (doc.getObject("XZ_Plane"), [""])
sketch14.MapMode = "FlatFace"
sketch14.AttachmentOffset = App.Placement(App.Vector(0, 0, -20.3), App.Rotation())
sketch14.addGeometry(Part.LineSegment(App.Vector(-21.5, -11.7, 0), App.Vector(-21.5, -14.7, 0)), False)
sketch14.addGeometry(Part.LineSegment(App.Vector(-21.5, -14.7, 0), App.Vector(21.5, -14.7, 0)), False)
sketch14.addGeometry(Part.LineSegment(App.Vector(21.5, -14.7, 0), App.Vector(21.5, -11.7, 0)), False)
sketch14.addGeometry(Part.LineSegment(App.Vector(21.5, -11.7, 0), App.Vector(-21.5, -11.7, 0)), False)
sketch14.addConstraint(Sketcher.Constraint("Coincident", 0, 2, 1, 1))
sketch14.addConstraint(Sketcher.Constraint("Coincident", 1, 2, 2, 1))
sketch14.addConstraint(Sketcher.Constraint("Coincident", 2, 2, 3, 1))
sketch14.addConstraint(Sketcher.Constraint("Coincident", 3, 2, 0, 1))
sketch14.addConstraint(Sketcher.Constraint("Vertical", 0))
sketch14.addConstraint(Sketcher.Constraint("Horizontal", 1))
sketch14.addConstraint(Sketcher.Constraint("Vertical", 2))
sketch14.addConstraint(Sketcher.Constraint("Horizontal", 3))
sketch14.addConstraint(Sketcher.Constraint("DistanceX", 1, 1, 1, 2, Q("43 mm")))
sketch14.addConstraint(Sketcher.Constraint("DistanceY", 0, 2, 0, 1, Q("3 mm")))
sketch14.addConstraint(Sketcher.Constraint("DistanceX", 0, 2, -1, 1, Q("21.5 mm")))
sketch14.addConstraint(Sketcher.Constraint("DistanceY", 0, 2, -1, 1, Q("14.7 mm")))
sketch14.setExpression("Constraints[8]", "Params.sketch14_width")
sketch14.setExpression("Constraints[9]", "Params.sketch14_height")
pad3 = body.newObject("PartDesign::Pad", "Pad002")
pad3.Profile = sketch14
pad3.setExpression("Length", "Params.pad3_length")

# Sketch on XY plane
sketch15 = body.newObject("Sketcher::SketchObject", "Sketch014")
sketch15.AttachmentSupport = (doc.getObject("XY_Plane"), [""])
sketch15.MapMode = "FlatFace"
sketch15.AttachmentOffset = App.Placement(App.Vector(0, 0, -14.7), App.Rotation())
sketch15.addGeometry(Part.Circle(App.Vector(1.9, 5.3, 0), App.Vector(0, 0, 1), 1.6), False)
sketch15.addGeometry(Part.Circle(App.Vector(-14.1, 5.3, 0), App.Vector(0, 0, 1), 1.6), False)
sketch15.addConstraint(Sketcher.Constraint("Equal", 0, 1))
sketch15.addConstraint(Sketcher.Constraint("Horizontal", 0, 3, 1, 3))
sketch15.addConstraint(Sketcher.Constraint("Diameter", 0, Q("3.2 mm")))
sketch15.addConstraint(Sketcher.Constraint("DistanceX", 1, 3, 0, 3, Q("16 mm")))
sketch15.addConstraint(Sketcher.Constraint("DistanceX", -1, 1, 0, 3, Q("1.9 mm")))
sketch15.addConstraint(Sketcher.Constraint("DistanceY", -1, 1, 0, 3, Q("5.3 mm")))
sketch15.setExpression("Constraints[2]", "Params.sketch15_diameter")
pocket10 = body.newObject("PartDesign::Pocket", "Pocket009")
pocket10.Profile = sketch15
pocket10.Type = "ThroughAll"
pocket10.Reversed = True

# Sketch on XY plane
sketch16 = body.newObject("Sketcher::SketchObject", "Sketch015")
sketch16.AttachmentSupport = (doc.getObject("XY_Plane"), [""])
sketch16.MapMode = "FlatFace"
sketch16.AttachmentOffset = App.Placement(App.Vector(0, 0, -14.7), App.Rotation())
sketch16.addGeometry(Part.Circle(App.Vector(0, 14.3, 0), App.Vector(0, 0, 1), 2.75), False)
sketch16.addConstraint(Sketcher.Constraint("PointOnObject", 0, 3, -2))
sketch16.addConstraint(Sketcher.Constraint("Diameter", 0, Q("5.5 mm")))
sketch16.addConstraint(Sketcher.Constraint("DistanceY", -1, 1, 0, 3, Q("14.3 mm")))
sketch16.setExpression("Constraints[1]", "Params.sketch16_diameter")
pad4 = body.newObject("PartDesign::Pad", "Pad003")
pad4.Profile = sketch16
pad4.setExpression("Length", "Params.pad4_length")
pad4.Reversed = True
doc.recompute()

fillet = body.newObject("PartDesign::Fillet", "Fillet")
fillet.Base = (pad4, edges_at(pad4, [(-2.75, 14.3, -17.7)]))
fillet.setExpression("Radius", "Params.fillet_radius")

# Sketch on YZ plane
sketch17 = body.newObject("Sketcher::SketchObject", "Sketch016")
sketch17.AttachmentSupport = (doc.getObject("YZ_Plane"), [""])
sketch17.MapMode = "FlatFace"
sketch17.AttachmentOffset = App.Placement(App.Vector(0, 0, 21.5), App.Rotation())
sketch17.addGeometry(Part.LineSegment(App.Vector(20.3, 21.5, 0), App.Vector(2.3, -11.7, 0)), False)
sketch17.addGeometry(Part.LineSegment(App.Vector(2.3, -11.7, 0), App.Vector(20.3, -11.7, 0)), False)
sketch17.addGeometry(Part.LineSegment(App.Vector(20.3, -11.7, 0), App.Vector(20.3, 21.5, 0)), False)
sketch17.addGeometry(Part.LineSegment(App.Vector(7.33906, -8.7, 0), App.Vector(17.3, 9.672401, 0)), False)
sketch17.addGeometry(Part.LineSegment(App.Vector(17.3, 9.672401, 0), App.Vector(17.3, -8.7, 0)), False)
sketch17.addGeometry(Part.LineSegment(App.Vector(17.3, -8.7, 0), App.Vector(7.33906, -8.7, 0)), False)
sketch17.addConstraint(Sketcher.Constraint("Coincident", 0, 2, 1, 1))
sketch17.addConstraint(Sketcher.Constraint("Coincident", 1, 2, 2, 1))
sketch17.addConstraint(Sketcher.Constraint("Coincident", 2, 2, 0, 1))
sketch17.addConstraint(Sketcher.Constraint("Coincident", 3, 2, 4, 1))
sketch17.addConstraint(Sketcher.Constraint("Coincident", 4, 2, 5, 1))
sketch17.addConstraint(Sketcher.Constraint("Coincident", 5, 2, 3, 1))
sketch17.addConstraint(Sketcher.Constraint("Horizontal", 1))
sketch17.addConstraint(Sketcher.Constraint("Vertical", 2))
sketch17.addConstraint(Sketcher.Constraint("Vertical", 4))
sketch17.addConstraint(Sketcher.Constraint("Horizontal", 5))
sketch17.addConstraint(Sketcher.Constraint("Parallel", 0, 3))
sketch17.addConstraint(Sketcher.Constraint("DistanceX", 1, 1, 1, 2, Q("18 mm")))
sketch17.addConstraint(Sketcher.Constraint("DistanceY", 2, 1, 2, 2, Q("33.2 mm")))
sketch17.addConstraint(Sketcher.Constraint("DistanceX", 3, 2, 2, 2, Q("3 mm")))
sketch17.addConstraint(Sketcher.Constraint("DistanceY", 1, 2, 4, 2, Q("3 mm")))
sketch17.addConstraint(Sketcher.Constraint("DistanceX", -1, 1, 0, 2, Q("2.3 mm")))
sketch17.addConstraint(Sketcher.Constraint("DistanceY", 0, 2, -1, 1, Q("11.7 mm")))
sketch17.addConstraint(Sketcher.Constraint("DistanceY", 4, 2, 4, 1, Q("18.372401 mm")))
sketch17.setExpression("Constraints[11]", "Params.sketch17_width")
sketch17.setExpression("Constraints[12]", "Params.sketch17_height")
pad5 = body.newObject("PartDesign::Pad", "Pad004")
pad5.Profile = sketch17
pad5.setExpression("Length", "Params.pad5_length")
pad5.Reversed = True
doc.recompute()

mirrored3 = body.newObject("PartDesign::Mirrored", "Mirrored002")
mirrored3.Originals = [pocket10]
mirrored3.MirrorPlane = (doc.getObject("YZ_Plane"), [""])
body.Tip = mirrored3

# Sketch on YZ plane
sketch18 = body.newObject("Sketcher::SketchObject", "Sketch017")
sketch18.AttachmentSupport = (doc.getObject("YZ_Plane"), [""])
sketch18.MapMode = "FlatFace"
sketch18.AttachmentOffset = App.Placement(App.Vector(0, 0, -21.5), App.Rotation())
sketch18.addGeometry(Part.LineSegment(App.Vector(20.3, -11.7, 0), App.Vector(2.3, -11.7, 0)), False)
sketch18.addGeometry(Part.LineSegment(App.Vector(2.3, -11.7, 0), App.Vector(20.3, 21.5, 0)), False)
sketch18.addGeometry(Part.LineSegment(App.Vector(20.3, 21.5, 0), App.Vector(20.3, -11.7, 0)), False)
sketch18.addGeometry(Part.LineSegment(App.Vector(17.3, -8.7, 0), App.Vector(17.3, 9.672401, 0)), False)
sketch18.addGeometry(Part.LineSegment(App.Vector(17.3, 9.672401, 0), App.Vector(7.33906, -8.7, 0)), False)
sketch18.addGeometry(Part.LineSegment(App.Vector(7.33906, -8.7, 0), App.Vector(17.3, -8.7, 0)), False)
sketch18.addConstraint(Sketcher.Constraint("Coincident", 0, 2, 1, 1))
sketch18.addConstraint(Sketcher.Constraint("Coincident", 1, 2, 2, 1))
sketch18.addConstraint(Sketcher.Constraint("Coincident", 2, 2, 0, 1))
sketch18.addConstraint(Sketcher.Constraint("Coincident", 3, 2, 4, 1))
sketch18.addConstraint(Sketcher.Constraint("Coincident", 4, 2, 5, 1))
sketch18.addConstraint(Sketcher.Constraint("Coincident", 5, 2, 3, 1))
sketch18.addConstraint(Sketcher.Constraint("Horizontal", 0))
sketch18.addConstraint(Sketcher.Constraint("Vertical", 2))
sketch18.addConstraint(Sketcher.Constraint("Vertical", 3))
sketch18.addConstraint(Sketcher.Constraint("Horizontal", 5))
sketch18.addConstraint(Sketcher.Constraint("Parallel", 1, 4))
sketch18.addConstraint(Sketcher.Constraint("DistanceX", 0, 2, 0, 1, Q("18 mm")))
sketch18.addConstraint(Sketcher.Constraint("DistanceY", 2, 2, 2, 1, Q("33.2 mm")))
sketch18.addConstraint(Sketcher.Constraint("DistanceX", 3, 2, 1, 2, Q("3 mm")))
sketch18.addConstraint(Sketcher.Constraint("DistanceY", 0, 2, 4, 2, Q("3 mm")))
sketch18.addConstraint(Sketcher.Constraint("DistanceX", -1, 1, 0, 2, Q("2.3 mm")))
sketch18.addConstraint(Sketcher.Constraint("DistanceY", 0, 2, -1, 1, Q("11.7 mm")))
sketch18.addConstraint(Sketcher.Constraint("DistanceY", 3, 1, 3, 2, Q("18.372401 mm")))
sketch18.setExpression("Constraints[11]", "Params.sketch18_width")
sketch18.setExpression("Constraints[12]", "Params.sketch18_height")
pad6 = body.newObject("PartDesign::Pad", "Pad005")
pad6.Profile = sketch18
pad6.setExpression("Length", "Params.pad6_length")
doc.recompute()

fillet2 = body.newObject("PartDesign::Fillet", "Fillet001")
fillet2.Base = (pad6, edges_at(pad6, [
    (20.35, 17.3, 9.672),
    (20.35, 7.339, -8.7),
    (20.35, 17.3, -8.7),
    (-20.35, 7.339, -8.7),
    (-20.35, 17.3, 9.672),
    (-20.35, 17.3, -8.7),
]))
fillet2.setExpression("Radius", "Params.fillet2_radius")

doc.recompute()
